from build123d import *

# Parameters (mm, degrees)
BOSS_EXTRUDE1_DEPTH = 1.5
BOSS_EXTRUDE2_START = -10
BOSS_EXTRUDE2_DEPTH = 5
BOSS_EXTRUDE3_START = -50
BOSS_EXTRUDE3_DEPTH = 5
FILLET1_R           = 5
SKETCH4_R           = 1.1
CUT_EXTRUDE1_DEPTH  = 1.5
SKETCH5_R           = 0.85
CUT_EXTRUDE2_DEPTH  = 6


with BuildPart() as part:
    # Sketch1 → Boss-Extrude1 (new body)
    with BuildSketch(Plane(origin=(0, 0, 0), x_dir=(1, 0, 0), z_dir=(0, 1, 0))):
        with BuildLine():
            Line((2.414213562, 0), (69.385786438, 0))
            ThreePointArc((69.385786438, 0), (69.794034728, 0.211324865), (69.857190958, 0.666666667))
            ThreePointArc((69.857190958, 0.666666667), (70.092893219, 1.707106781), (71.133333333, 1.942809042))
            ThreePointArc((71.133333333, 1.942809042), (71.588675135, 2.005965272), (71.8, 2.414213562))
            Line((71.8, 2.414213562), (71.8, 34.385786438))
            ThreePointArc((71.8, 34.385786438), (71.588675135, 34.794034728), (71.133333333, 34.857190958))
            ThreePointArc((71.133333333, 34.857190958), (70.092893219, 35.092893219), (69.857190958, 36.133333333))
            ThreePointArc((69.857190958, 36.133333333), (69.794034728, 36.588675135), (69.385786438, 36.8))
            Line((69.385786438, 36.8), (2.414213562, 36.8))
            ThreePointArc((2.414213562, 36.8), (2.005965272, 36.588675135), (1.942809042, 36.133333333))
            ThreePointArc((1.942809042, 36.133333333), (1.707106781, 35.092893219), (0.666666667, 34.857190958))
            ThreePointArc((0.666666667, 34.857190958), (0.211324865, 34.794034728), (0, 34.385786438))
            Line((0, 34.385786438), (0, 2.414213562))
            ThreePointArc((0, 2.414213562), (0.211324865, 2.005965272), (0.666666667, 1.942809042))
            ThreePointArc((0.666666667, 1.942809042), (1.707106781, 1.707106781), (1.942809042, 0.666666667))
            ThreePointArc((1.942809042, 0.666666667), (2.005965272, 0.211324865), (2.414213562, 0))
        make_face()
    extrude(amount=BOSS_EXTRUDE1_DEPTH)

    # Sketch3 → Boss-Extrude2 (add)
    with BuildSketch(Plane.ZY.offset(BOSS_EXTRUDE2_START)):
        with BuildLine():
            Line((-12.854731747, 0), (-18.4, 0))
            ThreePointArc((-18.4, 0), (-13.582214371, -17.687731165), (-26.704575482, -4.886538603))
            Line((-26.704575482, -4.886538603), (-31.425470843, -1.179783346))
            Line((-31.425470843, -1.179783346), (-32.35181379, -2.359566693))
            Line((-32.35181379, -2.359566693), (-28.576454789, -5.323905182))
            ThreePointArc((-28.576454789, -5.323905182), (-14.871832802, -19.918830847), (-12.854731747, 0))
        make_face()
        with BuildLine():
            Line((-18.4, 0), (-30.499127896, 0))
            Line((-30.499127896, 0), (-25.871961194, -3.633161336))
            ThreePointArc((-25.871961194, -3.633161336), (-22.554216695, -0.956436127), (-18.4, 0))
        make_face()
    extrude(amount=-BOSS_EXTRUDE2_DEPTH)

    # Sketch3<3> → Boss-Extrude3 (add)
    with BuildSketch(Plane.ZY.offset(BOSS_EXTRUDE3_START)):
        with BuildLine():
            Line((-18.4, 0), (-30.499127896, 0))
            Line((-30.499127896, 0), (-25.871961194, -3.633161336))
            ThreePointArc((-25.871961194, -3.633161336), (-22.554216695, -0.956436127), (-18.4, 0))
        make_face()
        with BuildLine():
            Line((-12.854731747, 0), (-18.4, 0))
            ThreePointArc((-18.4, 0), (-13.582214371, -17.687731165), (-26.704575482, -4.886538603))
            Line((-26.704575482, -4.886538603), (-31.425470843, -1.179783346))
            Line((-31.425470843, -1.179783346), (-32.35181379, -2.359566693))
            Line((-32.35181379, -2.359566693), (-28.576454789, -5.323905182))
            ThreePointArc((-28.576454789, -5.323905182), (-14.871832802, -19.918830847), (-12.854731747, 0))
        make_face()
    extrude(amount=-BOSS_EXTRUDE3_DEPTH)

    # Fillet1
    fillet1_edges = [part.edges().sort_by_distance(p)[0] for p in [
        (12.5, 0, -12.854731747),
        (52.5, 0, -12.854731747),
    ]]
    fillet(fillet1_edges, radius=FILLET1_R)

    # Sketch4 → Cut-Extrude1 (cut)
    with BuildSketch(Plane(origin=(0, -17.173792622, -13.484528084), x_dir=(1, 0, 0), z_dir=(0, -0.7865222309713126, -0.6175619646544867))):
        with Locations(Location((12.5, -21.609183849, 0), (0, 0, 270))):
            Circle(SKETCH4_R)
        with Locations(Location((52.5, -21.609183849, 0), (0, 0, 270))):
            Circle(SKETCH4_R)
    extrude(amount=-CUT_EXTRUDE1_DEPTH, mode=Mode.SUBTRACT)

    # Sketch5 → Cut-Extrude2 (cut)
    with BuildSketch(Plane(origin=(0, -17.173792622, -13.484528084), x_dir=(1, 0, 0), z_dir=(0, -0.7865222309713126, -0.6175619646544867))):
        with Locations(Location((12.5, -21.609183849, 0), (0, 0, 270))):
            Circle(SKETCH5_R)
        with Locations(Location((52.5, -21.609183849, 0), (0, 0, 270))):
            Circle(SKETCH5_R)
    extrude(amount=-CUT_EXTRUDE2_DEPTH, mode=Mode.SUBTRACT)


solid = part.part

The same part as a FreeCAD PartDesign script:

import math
import FreeCAD as App
import Part
import Sketcher

V = App.Vector
Q = App.Units.Quantity


def edges_at(feature, points):
    """Names of the edges that pass closest to the given points."""
    edges = feature.Shape.Edges
    near = lambda p: min(range(len(edges)), key=lambda i: edges[i].distToShape(Part.Vertex(*p))[0])
    return sorted({f"Edge{near(p) + 1}" for p in points})

doc = App.newDocument("Part")
body = doc.addObject("PartDesign::Body", "Body")

# Sketch on XZ plane
sketch1 = body.newObject("Sketcher::SketchObject", "Sketch")
sketch1.AttachmentSupport = (doc.getObject("XZ_Plane"), [""])
sketch1.MapMode = "FlatFace"
sketch1.addGeometry([
    Part.LineSegment(V(2.414214, 0, 0), V(69.385786, 0, 0)),  # 0
    Part.ArcOfCircle(Part.Circle(V(69.385786, -0.5, 0), V(0, 0, 1), 0.5), math.radians(-19.471221), math.radians(90)),  # 1
    Part.ArcOfCircle(Part.Circle(V(70.8, -1, 0), V(0, 0, 1), 1), math.radians(160.528779), math.radians(289.471221)),  # 2
    Part.ArcOfCircle(Part.Circle(V(71.3, -2.414214, 0), V(0, 0, 1), 0.5), math.radians(0), math.radians(109.471221)),  # 3
    Part.LineSegment(V(71.8, -2.414214, 0), V(71.8, -34.385786, 0)),  # 4
    Part.ArcOfCircle(Part.Circle(V(71.3, -34.385786, 0), V(0, 0, 1), 0.5), math.radians(-109.471221), math.radians(0)),  # 5
    Part.ArcOfCircle(Part.Circle(V(70.8, -35.8, 0), V(0, 0, 1), 1), math.radians(70.528779), math.radians(199.471221)),  # 6
    Part.ArcOfCircle(Part.Circle(V(69.385786, -36.3, 0), V(0, 0, 1), 0.5), math.radians(-90), math.radians(19.471221)),  # 7
    Part.LineSegment(V(69.385786, -36.8, 0), V(2.414214, -36.8, 0)),  # 8
    Part.ArcOfCircle(Part.Circle(V(2.414214, -36.3, 0), V(0, 0, 1), 0.5), math.radians(160.528779), math.radians(270)),  # 9
    Part.ArcOfCircle(Part.Circle(V(1, -35.8, 0), V(0, 0, 1), 1), math.radians(-19.471221), math.radians(109.471221)),  # 10
    Part.ArcOfCircle(Part.Circle(V(0.5, -34.385786, 0), V(0, 0, 1), 0.5), math.radians(180), math.radians(289.471221)),  # 11
    Part.LineSegment(V(0, -34.385786, 0), V(0, -2.414214, 0)),  # 12
    Part.ArcOfCircle(Part.Circle(V(0.5, -2.414214, 0), V(0, 0, 1), 0.5), math.radians(70.528779), math.radians(180)),  # 13
    Part.ArcOfCircle(Part.Circle(V(1, -1, 0), V(0, 0, 1), 1), math.radians(-109.471221), math.radians(19.471221)),  # 14
    Part.ArcOfCircle(Part.Circle(V(2.414214, -0.5, 0), V(0, 0, 1), 0.5), math.radians(90), math.radians(199.471221)),  # 15
], False)
sketch1.addConstraint([
    Sketcher.Constraint("Tangent", 0, 2, 1, 2),
    Sketcher.Constraint("Tangent", 1, 1, 2, 1),
    Sketcher.Constraint("Tangent", 2, 2, 3, 2),
    Sketcher.Constraint("Tangent", 3, 1, 4, 1),
    Sketcher.Constraint("Tangent", 4, 2, 5, 2),
    Sketcher.Constraint("Tangent", 5, 1, 6, 1),
    Sketcher.Constraint("Tangent", 6, 2, 7, 2),
    Sketcher.Constraint("Tangent", 7, 1, 8, 1),
    Sketcher.Constraint("Tangent", 8, 2, 9, 2),
    Sketcher.Constraint("Tangent", 9, 1, 10, 1),
    Sketcher.Constraint("Tangent", 10, 2, 11, 2),
    Sketcher.Constraint("Tangent", 11, 1, 12, 1),
    Sketcher.Constraint("Tangent", 12, 2, 13, 2),
    Sketcher.Constraint("Tangent", 13, 1, 14, 1),
    Sketcher.Constraint("Tangent", 14, 2, 15, 2),
    Sketcher.Constraint("Tangent", 15, 1, 0, 1),
    Sketcher.Constraint("Horizontal", 0),
    Sketcher.Constraint("Vertical", 4),
    Sketcher.Constraint("Horizontal", 8),
    Sketcher.Constraint("Vertical", 12),
    Sketcher.Constraint("Equal", 1, 3),
    Sketcher.Constraint("Equal", 3, 5),
    Sketcher.Constraint("Equal", 2, 6),
    Sketcher.Constraint("Equal", 5, 7),
    Sketcher.Constraint("Equal", 7, 9),
    Sketcher.Constraint("Equal", 6, 10),
    Sketcher.Constraint("Equal", 9, 11),
    Sketcher.Constraint("Equal", 11, 13),
    Sketcher.Constraint("Equal", 10, 14),
    Sketcher.Constraint("Equal", 13, 15),
    Sketcher.Constraint("PointOnObject", 0, 2, -1),
    Sketcher.Constraint("PointOnObject", 11, 1, -2),
    Sketcher.Constraint("Horizontal", 6, 3, 10, 3),
    Sketcher.Constraint("Horizontal", 5, 3, 11, 3),
    Sketcher.Constraint("Horizontal", 3, 3, 13, 3),
    Sketcher.Constraint("Horizontal", 2, 3, 14, 3),
    Sketcher.Constraint("Vertical", 2, 3, 6, 3),
    Sketcher.Constraint("Vertical", 1, 3, 7, 3),
    Sketcher.Constraint("Radius", 2, Q("1 mm")),
    Sketcher.Constraint("Radius", 1, Q("0.5 mm")),
    Sketcher.Constraint("DistanceY", 2, 3, -1, 1, Q("1 mm")),
    Sketcher.Constraint("DistanceX", -1, 1, 10, 3, Q("1 mm")),
    Sketcher.Constraint("DistanceX", -1, 1, 2, 3, Q("70.8 mm")),
    Sketcher.Constraint("DistanceY", 6, 3, -1, 1, Q("35.8 mm")),
])
pad1 = body.newObject("PartDesign::Pad", "Pad")
pad1.Profile = sketch1
pad1.Length = 1.5
pad1.Reversed = True

# Sketch on YZ plane
sketch2 = body.newObject("Sketcher::SketchObject", "Sketch001")
sketch2.AttachmentSupport = (doc.getObject("YZ_Plane"), [""])
sketch2.MapMode = "FlatFace"
sketch2.AttachmentOffset = App.Placement(V(0, 0, 10), App.Rotation())
sketch2.addGeometry([
    Part.LineSegment(V(0, -12.854732, 0), V(0, -18.4, 0)),  # 0
    Part.ArcOfCircle(Part.Circle(V(-9.5, -18.4, 0), V(0, 0, 1), 9.5), math.radians(0), math.radians(299.053594)),  # 1
    Part.LineSegment(V(-4.886539, -26.704575, 0), V(-1.179783, -31.425471, 0)),  # 2
    Part.LineSegment(V(-1.179783, -31.425471, 0), V(-2.359567, -32.351814, 0)),  # 3
    Part.LineSegment(V(-2.359567, -32.351814, 0), V(-5.323905, -28.576455, 0)),  # 4
    Part.ArcOfCircle(Part.Circle(V(-9.5, -18.4, 0), V(0, 0, 1), 11), math.radians(30.272641), math.radians(292.311694)),  # 5
    Part.LineSegment(V(0, -18.4, 0), V(0, -30.499128, 0)),  # 6
    Part.LineSegment(V(0, -30.499128, 0), V(-3.633161, -25.871961, 0)),  # 7
    Part.ArcOfCircle(Part.Circle(V(-9.5, -18.4, 0), V(0, 0, 1), 9.5), math.radians(-51.861686), math.radians(0)),  # 8
], False)
sketch2.addConstraint([
    Sketcher.Constraint("Tangent", 0, 2, 1, 1),
    Sketcher.Constraint("Coincident", 1, 2, 2, 1),
    Sketcher.Constraint("Coincident", 2, 2, 3, 1),
    Sketcher.Constraint("Coincident", 3, 2, 4, 1),
    Sketcher.Constraint("Coincident", 4, 2, 5, 2),
    Sketcher.Constraint("Coincident", 5, 1, 0, 1),
    Sketcher.Constraint("Coincident", 6, 2, 7, 1),
    Sketcher.Constraint("Coincident", 7, 2, 8, 1),
    Sketcher.Constraint("Tangent", 8, 2, 6, 1),
    Sketcher.Constraint("Vertical", 0),
    Sketcher.Constraint("Vertical", 6),
    Sketcher.Constraint("Coincident", 5, 3, 1, 3),
    Sketcher.Constraint("Coincident", 8, 3, 1, 3),
    Sketcher.Constraint("Equal", 1, 8),
    Sketcher.Constraint("PointOnObject", 0, 2, -2),
    Sketcher.Constraint("Perpendicular", 2, 3),
    Sketcher.Constraint("Perpendicular", 3, 4),
    Sketcher.Constraint("Parallel", 4, 7),
    Sketcher.Constraint("Radius", 5, Q("11 mm")),
    Sketcher.Constraint("Radius", 1, Q("9.5 mm")),
    Sketcher.Constraint("Distance", 3, Q("1.5 mm")),
    Sketcher.Constraint("DistanceY", 1, 3, -1, 1, Q("18.4 mm")),
    Sketcher.Constraint("Distance", 2, Q("6.00224 mm")),
    Sketcher.Constraint("Distance", 7, Q("5.883072 mm")),
    Sketcher.Constraint("DistanceX", 1, 2, -1, 1, Q("4.886539 mm")),
    Sketcher.Constraint("DistanceY", 2, 2, -1, 1, Q("31.425471 mm")),
])
pad2 = body.newObject("PartDesign::Pad", "Pad001")
pad2.Profile = sketch2
pad2.Length = 5

# Sketch on YZ plane
sketch3 = body.newObject("Sketcher::SketchObject", "Sketch002")
sketch3.AttachmentSupport = (doc.getObject("YZ_Plane"), [""])
sketch3.MapMode = "FlatFace"
sketch3.AttachmentOffset = App.Placement(V(0, 0, 50), App.Rotation())
sketch3.addGeometry([
    Part.LineSegment(V(0, -18.4, 0), V(0, -30.499128, 0)),  # 0
    Part.LineSegment(V(0, -30.499128, 0), V(-3.633161, -25.871961, 0)),  # 1
    Part.ArcOfCircle(Part.Circle(V(-9.5, -18.4, 0), V(0, 0, 1), 9.5), math.radians(-51.861686), math.radians(0)),  # 2
    Part.LineSegment(V(0, -12.854732, 0), V(0, -18.4, 0)),  # 3
    Part.ArcOfCircle(Part.Circle(V(-9.5, -18.4, 0), V(0, 0, 1), 9.5), math.radians(0), math.radians(299.053594)),  # 4
    Part.LineSegment(V(-4.886539, -26.704575, 0), V(-1.179783, -31.425471, 0)),  # 5
    Part.LineSegment(V(-1.179783, -31.425471, 0), V(-2.359567, -32.351814, 0)),  # 6
    Part.LineSegment(V(-2.359567, -32.351814, 0), V(-5.323905, -28.576455, 0)),  # 7
    Part.ArcOfCircle(Part.Circle(V(-9.5, -18.4, 0), V(0, 0, 1), 11), math.radians(30.272641), math.radians(292.311694)),  # 8
], False)
sketch3.addConstraint([
    Sketcher.Constraint("Coincident", 0, 2, 1, 1),
    Sketcher.Constraint("Coincident", 1, 2, 2, 1),
    Sketcher.Constraint("Tangent", 2, 2, 0, 1),
    Sketcher.Constraint("Tangent", 3, 2, 4, 1),
    Sketcher.Constraint("Coincident", 4, 2, 5, 1),
    Sketcher.Constraint("Coincident", 5, 2, 6, 1),
    Sketcher.Constraint("Coincident", 6, 2, 7, 1),
    Sketcher.Constraint("Coincident", 7, 2, 8, 2),
    Sketcher.Constraint("Coincident", 8, 1, 3, 1),
    Sketcher.Constraint("Vertical", 0),
    Sketcher.Constraint("Vertical", 3),
    Sketcher.Constraint("Coincident", 4, 3, 2, 3),
    Sketcher.Constraint("Coincident", 8, 3, 2, 3),
    Sketcher.Constraint("Equal", 2, 4),
    Sketcher.Constraint("PointOnObject", 0, 2, -2),
    Sketcher.Constraint("Parallel", 1, 5),
    Sketcher.Constraint("Perpendicular", 5, 6),
    Sketcher.Constraint("Perpendicular", 6, 7),
    Sketcher.Constraint("Radius", 8, Q("11 mm")),
    Sketcher.Constraint("Radius", 2, Q("9.5 mm")),
    Sketcher.Constraint("Distance", 6, Q("1.5 mm")),
    Sketcher.Constraint("DistanceY", 2, 3, -1, 1, Q("18.4 mm")),
    Sketcher.Constraint("Distance", 1, Q("5.883072 mm")),
    Sketcher.Constraint("Distance", 5, Q("6.00224 mm")),
    Sketcher.Constraint("DistanceX", 1, 2, -1, 1, Q("3.633161 mm")),
    Sketcher.Constraint("DistanceX", 4, 2, -1, 1, Q("4.886539 mm")),
])
pad3 = body.newObject("PartDesign::Pad", "Pad002")
pad3.Profile = sketch3
pad3.Length = 5
doc.recompute()

fillet = body.newObject("PartDesign::Fillet", "Fillet")
fillet.Base = (pad3, edges_at(pad3, [(12.5, 0, -12.855), (52.5, 0, -12.855)]))
fillet.Radius = 5

# Sketch on an angled plane
sketch4 = body.newObject("Sketcher::SketchObject", "Sketch003")
sketch4.Placement = App.Placement(V(0, -17.173793, -13.484528), App.Rotation(V(1, 0, 0), V(0, -0.617561965, 0.786522231), V(0, -0.786522231, -0.617561965), "ZXY"))
sketch4.addGeometry([
    Part.Circle(V(12.5, -21.609184, 0), V(0, 0, 1), 1.1),
    Part.Circle(V(52.5, -21.609184, 0), V(0, 0, 1), 1.1),
], False)
sketch4.addConstraint([
    Sketcher.Constraint("Equal", 0, 1),
    Sketcher.Constraint("Horizontal", 0, 3, 1, 3),
    Sketcher.Constraint("Diameter", 0, Q("2.2 mm")),
    Sketcher.Constraint("DistanceX", 0, 3, 1, 3, Q("40 mm")),
    Sketcher.Constraint("DistanceX", -1, 1, 0, 3, Q("12.5 mm")),
    Sketcher.Constraint("DistanceY", 0, 3, -1, 1, Q("21.609184 mm")),
])
pocket1 = body.newObject("PartDesign::Pocket", "Pocket")
pocket1.Profile = sketch4
pocket1.Length = 1.5

# Sketch on an angled plane
sketch5 = body.newObject("Sketcher::SketchObject", "Sketch004")
sketch5.Placement = App.Placement(V(0, -17.173793, -13.484528), App.Rotation(V(1, 0, 0), V(0, -0.617561965, 0.786522231), V(0, -0.786522231, -0.617561965), "ZXY"))
sketch5.addGeometry([
    Part.Circle(V(12.5, -21.609184, 0), V(0, 0, 1), 0.85),
    Part.Circle(V(52.5, -21.609184, 0), V(0, 0, 1), 0.85),
], False)
sketch5.addConstraint([
    Sketcher.Constraint("Equal", 0, 1),
    Sketcher.Constraint("Horizontal", 0, 3, 1, 3),
    Sketcher.Constraint("Diameter", 0, Q("1.7 mm")),
    Sketcher.Constraint("DistanceX", 0, 3, 1, 3, Q("40 mm")),
    Sketcher.Constraint("DistanceX", -1, 1, 0, 3, Q("12.5 mm")),
    Sketcher.Constraint("DistanceY", 0, 3, -1, 1, Q("21.609184 mm")),
])
pocket2 = body.newObject("PartDesign::Pocket", "Pocket001")
pocket2.Profile = sketch5
pocket2.Length = 6

doc.recompute()
